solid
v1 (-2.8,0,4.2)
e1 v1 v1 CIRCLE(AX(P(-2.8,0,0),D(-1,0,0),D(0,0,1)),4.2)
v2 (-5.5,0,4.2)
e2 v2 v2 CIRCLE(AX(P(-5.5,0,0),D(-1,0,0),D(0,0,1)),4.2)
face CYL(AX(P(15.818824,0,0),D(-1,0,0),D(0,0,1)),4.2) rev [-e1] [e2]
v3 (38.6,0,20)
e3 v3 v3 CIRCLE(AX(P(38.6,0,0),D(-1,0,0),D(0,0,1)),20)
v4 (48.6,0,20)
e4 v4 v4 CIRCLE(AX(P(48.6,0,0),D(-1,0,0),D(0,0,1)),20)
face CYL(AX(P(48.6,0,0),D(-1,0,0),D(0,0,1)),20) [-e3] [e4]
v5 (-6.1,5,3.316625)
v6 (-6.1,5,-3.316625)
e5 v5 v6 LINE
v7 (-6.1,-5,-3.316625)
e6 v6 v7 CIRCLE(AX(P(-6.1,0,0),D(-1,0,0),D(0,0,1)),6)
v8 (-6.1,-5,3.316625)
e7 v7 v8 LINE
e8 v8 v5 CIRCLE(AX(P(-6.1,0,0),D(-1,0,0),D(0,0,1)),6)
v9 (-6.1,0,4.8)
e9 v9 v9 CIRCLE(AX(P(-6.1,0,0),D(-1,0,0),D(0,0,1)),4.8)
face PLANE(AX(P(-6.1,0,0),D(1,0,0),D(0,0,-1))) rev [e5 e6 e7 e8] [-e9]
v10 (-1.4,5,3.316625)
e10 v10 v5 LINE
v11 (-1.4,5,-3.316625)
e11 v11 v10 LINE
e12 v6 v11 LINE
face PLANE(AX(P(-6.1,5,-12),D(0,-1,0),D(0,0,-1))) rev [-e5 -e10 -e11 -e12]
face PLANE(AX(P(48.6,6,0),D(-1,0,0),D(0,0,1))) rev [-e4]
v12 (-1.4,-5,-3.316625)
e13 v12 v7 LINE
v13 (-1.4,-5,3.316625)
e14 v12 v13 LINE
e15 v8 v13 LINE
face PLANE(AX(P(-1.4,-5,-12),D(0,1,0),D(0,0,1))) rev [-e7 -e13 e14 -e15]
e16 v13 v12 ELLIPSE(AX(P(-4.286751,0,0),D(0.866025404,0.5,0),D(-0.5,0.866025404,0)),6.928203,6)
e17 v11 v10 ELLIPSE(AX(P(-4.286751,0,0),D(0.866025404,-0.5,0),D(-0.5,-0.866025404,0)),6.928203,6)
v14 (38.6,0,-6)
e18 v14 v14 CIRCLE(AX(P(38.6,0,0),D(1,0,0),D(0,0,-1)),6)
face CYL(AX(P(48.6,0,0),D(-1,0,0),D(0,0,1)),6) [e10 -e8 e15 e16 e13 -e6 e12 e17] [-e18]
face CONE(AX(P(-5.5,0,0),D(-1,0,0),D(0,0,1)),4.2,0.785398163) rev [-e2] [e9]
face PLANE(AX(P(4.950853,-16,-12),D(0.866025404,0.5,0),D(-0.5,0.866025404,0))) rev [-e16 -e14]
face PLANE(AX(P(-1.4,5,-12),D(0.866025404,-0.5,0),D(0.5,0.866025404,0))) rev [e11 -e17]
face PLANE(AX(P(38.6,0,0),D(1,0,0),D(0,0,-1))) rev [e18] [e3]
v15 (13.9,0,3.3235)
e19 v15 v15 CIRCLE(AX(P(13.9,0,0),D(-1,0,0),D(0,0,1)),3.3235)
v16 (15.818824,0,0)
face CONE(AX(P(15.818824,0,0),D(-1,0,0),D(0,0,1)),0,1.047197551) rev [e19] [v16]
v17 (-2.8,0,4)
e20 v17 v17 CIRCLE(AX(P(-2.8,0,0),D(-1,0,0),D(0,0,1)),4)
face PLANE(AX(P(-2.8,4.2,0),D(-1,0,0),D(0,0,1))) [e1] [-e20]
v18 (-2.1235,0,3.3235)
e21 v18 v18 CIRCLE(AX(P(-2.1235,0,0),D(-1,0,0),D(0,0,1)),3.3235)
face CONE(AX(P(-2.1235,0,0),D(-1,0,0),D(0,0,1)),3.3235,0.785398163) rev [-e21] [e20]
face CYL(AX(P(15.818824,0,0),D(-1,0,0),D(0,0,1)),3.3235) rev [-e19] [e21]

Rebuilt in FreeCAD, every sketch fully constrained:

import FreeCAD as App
import Part
import Sketcher

V = App.Vector
Q = App.Units.Quantity

doc = App.newDocument("Part")
body = doc.addObject("PartDesign::Body", "Body")

# Sketch on XY plane
sketch1 = body.newObject("Sketcher::SketchObject", "Sketch")
sketch1.AttachmentSupport = (doc.getObject("XY_Plane"), [""])
sketch1.MapMode = "FlatFace"
sketch1.addGeometry([
    Part.LineSegment(V(-6, 6, 0), V(-6, 0, 0)),
    Part.LineSegment(V(-6, 0, 0), V(49, 0, 0)),
    Part.LineSegment(V(49, 0, 0), V(49, 6, 0)),
    Part.LineSegment(V(49, 6, 0), V(-6, 6, 0)),
], False)
sketch1.addConstraint([
    Sketcher.Constraint("Coincident", 0, 2, 1, 1),
    Sketcher.Constraint("Coincident", 1, 2, 2, 1),
    Sketcher.Constraint("Coincident", 2, 2, 3, 1),
    Sketcher.Constraint("Coincident", 3, 2, 0, 1),
    Sketcher.Constraint("Vertical", 0),
    Sketcher.Constraint("Horizontal", 1),
    Sketcher.Constraint("Vertical", 2),
    Sketcher.Constraint("Horizontal", 3),
    Sketcher.Constraint("PointOnObject", 0, 2, -1),
    Sketcher.Constraint("DistanceY", 0, 2, 0, 1, 6.0),
    Sketcher.Constraint("DistanceX", 1, 1, 1, 2, 54.7),
    Sketcher.Constraint("DistanceX", 0, 2, -1, 1, 6.1),
])
revolution = body.newObject("PartDesign::Revolution", "Revolution")
revolution.Profile = sketch1
revolution.ReferenceAxis = (sketch1, ["H_Axis"])
revolution.Angle = 360

# Sketch on XY plane
sketch2 = body.newObject("Sketcher::SketchObject", "Sketch001")
sketch2.AttachmentSupport = (doc.getObject("XY_Plane"), [""])
sketch2.MapMode = "FlatFace"
sketch2.addGeometry([
    Part.LineSegment(V(39, 20, 0), V(39, 0, 0)),
    Part.LineSegment(V(39, 0, 0), V(49, 0, 0)),
    Part.LineSegment(V(49, 0, 0), V(49, 20, 0)),
    Part.LineSegment(V(49, 20, 0), V(39, 20, 0)),
], False)
sketch2.addConstraint([
    Sketcher.Constraint("Coincident", 0, 2, 1, 1),
    Sketcher.Constraint("Coincident", 1, 2, 2, 1),
    Sketcher.Constraint("Coincident", 2, 2, 3, 1),
    Sketcher.Constraint("Coincident", 3, 2, 0, 1),
    Sketcher.Constraint("Vertical", 0),
    Sketcher.Constraint("Horizontal", 1),
    Sketcher.Constraint("Vertical", 2),
    Sketcher.Constraint("Horizontal", 3),
    Sketcher.Constraint("PointOnObject", 0, 2, -1),
    Sketcher.Constraint("DistanceX", 1, 1, 1, 2, 10.0),
    Sketcher.Constraint("DistanceY", 0, 2, 0, 1, 20.0),
    Sketcher.Constraint("DistanceX", -1, 1, 0, 2, 38.6),
])
revolution2 = body.newObject("PartDesign::Revolution", "Revolution001")
revolution2.Profile = sketch2
revolution2.ReferenceAxis = (sketch2, ["H_Axis"])
revolution2.Angle = 360

# Sketch on XY plane
sketch3 = body.newObject("Sketcher::SketchObject", "Sketch002")
sketch3.AttachmentSupport = (doc.getObject("XY_Plane"), [""])
sketch3.MapMode = "FlatFace"
sketch3.addGeometry([
    Part.LineSegment(V(-36.2, -16, 0), V(5, -16, 0)),  # 0
    Part.LineSegment(V(5, -16, 0), V(-1.4, -5, 0)),  # 1
    Part.LineSegment(V(-1.4, -5, 0), V(-6.1, -5, 0)),  # 2
    Part.LineSegment(V(-6.1, -5, 0), V(-6.1, -10, 0)),  # 3
    Part.LineSegment(V(-6.1, -10, 0), V(-30.1, -10, 0)),  # 4
    Part.LineSegment(V(-30.1, -10, 0), V(-30.1, 10, 0)),  # 5
    Part.LineSegment(V(-30.1, 10, 0), V(-6.1, 10, 0)),  # 6
    Part.LineSegment(V(-6.1, 10, 0), V(-6.1, 5, 0)),  # 7
    Part.LineSegment(V(-6.1, 5, 0), V(-1.4, 5, 0)),  # 8
    Part.LineSegment(V(-1.4, 5, 0), V(5, 16, 0)),  # 9
    Part.LineSegment(V(5, 16, 0), V(-36.2, 16, 0)),  # 10
    Part.LineSegment(V(-36.2, 16, 0), V(-36.2, -16, 0)),  # 11
], False)
sketch3.addConstraint([
    Sketcher.Constraint("Coincident", 0, 2, 1, 1),
    Sketcher.Constraint("Coincident", 1, 2, 2, 1),
    Sketcher.Constraint("Coincident", 2, 2, 3, 1),
    Sketcher.Constraint("Coincident", 3, 2, 4, 1),
    Sketcher.Constraint("Coincident", 4, 2, 5, 1),
    Sketcher.Constraint("Coincident", 5, 2, 6, 1),
    Sketcher.Constraint("Coincident", 6, 2, 7, 1),
    Sketcher.Constraint("Coincident", 7, 2, 8, 1),
    Sketcher.Constraint("Coincident", 8, 2, 9, 1),
    Sketcher.Constraint("Coincident", 9, 2, 10, 1),
    Sketcher.Constraint("Coincident", 10, 2, 11, 1),
    Sketcher.Constraint("Coincident", 11, 2, 0, 1),
    Sketcher.Constraint("Horizontal", 0),
    Sketcher.Constraint("Horizontal", 2),
    Sketcher.Constraint("Vertical", 3),
    Sketcher.Constraint("Horizontal", 4),
    Sketcher.Constraint("Vertical", 5),
    Sketcher.Constraint("Horizontal", 6),
    Sketcher.Constraint("Vertical", 7),
    Sketcher.Constraint("Horizontal", 8),
    Sketcher.Constraint("Horizontal", 10),
    Sketcher.Constraint("Vertical", 11),
    Sketcher.Constraint("Symmetric", 3, 2, 6, 2, -1),
    Sketcher.Constraint("Symmetric", 1, 2, 8, 2, -1),
    Sketcher.Constraint("Symmetric", 0, 2, 9, 2, -1),
    Sketcher.Constraint("DistanceX", 4, 2, 4, 1, 24.0),
    Sketcher.Constraint("DistanceY", 3, 2, 3, 1, 5.0),
    Sketcher.Constraint("DistanceY", 5, 1, 5, 2, 20.0),
    Sketcher.Constraint("DistanceY", 11, 2, 11, 1, 32.0),
    Sketcher.Constraint("Angle", 1, Q("120 deg")),
    Sketcher.Constraint("DistanceX", 2, 2, 2, 1, 4.7),
    Sketcher.Constraint("DistanceX", 1, 2, -1, 1, 1.4),
    Sketcher.Constraint("DistanceX", 10, 2, -1, 1, 36.2),
])
pocket1 = body.newObject("PartDesign::Pocket", "Pocket")
pocket1.Profile = sketch3
pocket1.Type = "ThroughAll"
pocket1.Midplane = True

# Sketch on XY plane
sketch4 = body.newObject("Sketcher::SketchObject", "Sketch003")
sketch4.AttachmentSupport = (doc.getObject("XY_Plane"), [""])
sketch4.MapMode = "FlatFace"
sketch4.addGeometry([
    Part.LineSegment(V(-6.1, 4.8, 0), V(-6.1, 0, 0)),  # 0
    Part.LineSegment(V(-6.1, 0, 0), V(15.82, 0, 0)),  # 1
    Part.LineSegment(V(15.82, 0, 0), V(13.9, 3.32, 0)),  # 2
    Part.LineSegment(V(13.9, 3.32, 0), V(-2.12, 3.32, 0)),  # 3
    Part.LineSegment(V(-2.12, 3.32, 0), V(-2.8, 4, 0)),  # 4
    Part.LineSegment(V(-2.8, 4, 0), V(-2.8, 4.2, 0)),  # 5
    Part.LineSegment(V(-2.8, 4.2, 0), V(-5.5, 4.2, 0)),  # 6
    Part.LineSegment(V(-5.5, 4.2, 0), V(-6.1, 4.8, 0)),  # 7
], False)
sketch4.addConstraint([
    Sketcher.Constraint("Coincident", 0, 2, 1, 1),
    Sketcher.Constraint("Coincident", 1, 2, 2, 1),
    Sketcher.Constraint("Coincident", 2, 2, 3, 1),
    Sketcher.Constraint("Coincident", 3, 2, 4, 1),
    Sketcher.Constraint("Coincident", 4, 2, 5, 1),
    Sketcher.Constraint("Coincident", 5, 2, 6, 1),
    Sketcher.Constraint("Coincident", 6, 2, 7, 1),
    Sketcher.Constraint("Coincident", 7, 2, 0, 1),
    Sketcher.Constraint("Vertical", 0),
    Sketcher.Constraint("Horizontal", 1),
    Sketcher.Constraint("Horizontal", 3),
    Sketcher.Constraint("Vertical", 5),
    Sketcher.Constraint("Horizontal", 6),
    Sketcher.Constraint("PointOnObject", 0, 2, -1),
    Sketcher.Constraint("Parallel", 4, 7),
    Sketcher.Constraint("Angle", 2, Q("120 deg")),
    Sketcher.Constraint("Angle", 4, Q("135 deg")),
    Sketcher.Constraint("DistanceX", 6, 2, 6, 1, 2.7),
    Sketcher.Constraint("DistanceY", 0, 2, 0, 1, 4.8),
    Sketcher.Constraint("DistanceY", 5, 1, 5, 2, 0.2),
    Sketcher.Constraint("DistanceY", -1, 1, 4, 2, 4.0),
    Sketcher.Constraint("DistanceX", 0, 2, 2, 2, 20.0),
    Sketcher.Constraint("DistanceX", 0, 2, -1, 1, 6.1),
    Sketcher.Constraint("DistanceX", 3, 2, 3, 1, 16.0235),
])
groove = body.newObject("PartDesign::Groove", "Groove")
groove.Profile = sketch4
groove.ReferenceAxis = (sketch4, ["H_Axis"])
groove.Angle = 360

doc.recompute()
